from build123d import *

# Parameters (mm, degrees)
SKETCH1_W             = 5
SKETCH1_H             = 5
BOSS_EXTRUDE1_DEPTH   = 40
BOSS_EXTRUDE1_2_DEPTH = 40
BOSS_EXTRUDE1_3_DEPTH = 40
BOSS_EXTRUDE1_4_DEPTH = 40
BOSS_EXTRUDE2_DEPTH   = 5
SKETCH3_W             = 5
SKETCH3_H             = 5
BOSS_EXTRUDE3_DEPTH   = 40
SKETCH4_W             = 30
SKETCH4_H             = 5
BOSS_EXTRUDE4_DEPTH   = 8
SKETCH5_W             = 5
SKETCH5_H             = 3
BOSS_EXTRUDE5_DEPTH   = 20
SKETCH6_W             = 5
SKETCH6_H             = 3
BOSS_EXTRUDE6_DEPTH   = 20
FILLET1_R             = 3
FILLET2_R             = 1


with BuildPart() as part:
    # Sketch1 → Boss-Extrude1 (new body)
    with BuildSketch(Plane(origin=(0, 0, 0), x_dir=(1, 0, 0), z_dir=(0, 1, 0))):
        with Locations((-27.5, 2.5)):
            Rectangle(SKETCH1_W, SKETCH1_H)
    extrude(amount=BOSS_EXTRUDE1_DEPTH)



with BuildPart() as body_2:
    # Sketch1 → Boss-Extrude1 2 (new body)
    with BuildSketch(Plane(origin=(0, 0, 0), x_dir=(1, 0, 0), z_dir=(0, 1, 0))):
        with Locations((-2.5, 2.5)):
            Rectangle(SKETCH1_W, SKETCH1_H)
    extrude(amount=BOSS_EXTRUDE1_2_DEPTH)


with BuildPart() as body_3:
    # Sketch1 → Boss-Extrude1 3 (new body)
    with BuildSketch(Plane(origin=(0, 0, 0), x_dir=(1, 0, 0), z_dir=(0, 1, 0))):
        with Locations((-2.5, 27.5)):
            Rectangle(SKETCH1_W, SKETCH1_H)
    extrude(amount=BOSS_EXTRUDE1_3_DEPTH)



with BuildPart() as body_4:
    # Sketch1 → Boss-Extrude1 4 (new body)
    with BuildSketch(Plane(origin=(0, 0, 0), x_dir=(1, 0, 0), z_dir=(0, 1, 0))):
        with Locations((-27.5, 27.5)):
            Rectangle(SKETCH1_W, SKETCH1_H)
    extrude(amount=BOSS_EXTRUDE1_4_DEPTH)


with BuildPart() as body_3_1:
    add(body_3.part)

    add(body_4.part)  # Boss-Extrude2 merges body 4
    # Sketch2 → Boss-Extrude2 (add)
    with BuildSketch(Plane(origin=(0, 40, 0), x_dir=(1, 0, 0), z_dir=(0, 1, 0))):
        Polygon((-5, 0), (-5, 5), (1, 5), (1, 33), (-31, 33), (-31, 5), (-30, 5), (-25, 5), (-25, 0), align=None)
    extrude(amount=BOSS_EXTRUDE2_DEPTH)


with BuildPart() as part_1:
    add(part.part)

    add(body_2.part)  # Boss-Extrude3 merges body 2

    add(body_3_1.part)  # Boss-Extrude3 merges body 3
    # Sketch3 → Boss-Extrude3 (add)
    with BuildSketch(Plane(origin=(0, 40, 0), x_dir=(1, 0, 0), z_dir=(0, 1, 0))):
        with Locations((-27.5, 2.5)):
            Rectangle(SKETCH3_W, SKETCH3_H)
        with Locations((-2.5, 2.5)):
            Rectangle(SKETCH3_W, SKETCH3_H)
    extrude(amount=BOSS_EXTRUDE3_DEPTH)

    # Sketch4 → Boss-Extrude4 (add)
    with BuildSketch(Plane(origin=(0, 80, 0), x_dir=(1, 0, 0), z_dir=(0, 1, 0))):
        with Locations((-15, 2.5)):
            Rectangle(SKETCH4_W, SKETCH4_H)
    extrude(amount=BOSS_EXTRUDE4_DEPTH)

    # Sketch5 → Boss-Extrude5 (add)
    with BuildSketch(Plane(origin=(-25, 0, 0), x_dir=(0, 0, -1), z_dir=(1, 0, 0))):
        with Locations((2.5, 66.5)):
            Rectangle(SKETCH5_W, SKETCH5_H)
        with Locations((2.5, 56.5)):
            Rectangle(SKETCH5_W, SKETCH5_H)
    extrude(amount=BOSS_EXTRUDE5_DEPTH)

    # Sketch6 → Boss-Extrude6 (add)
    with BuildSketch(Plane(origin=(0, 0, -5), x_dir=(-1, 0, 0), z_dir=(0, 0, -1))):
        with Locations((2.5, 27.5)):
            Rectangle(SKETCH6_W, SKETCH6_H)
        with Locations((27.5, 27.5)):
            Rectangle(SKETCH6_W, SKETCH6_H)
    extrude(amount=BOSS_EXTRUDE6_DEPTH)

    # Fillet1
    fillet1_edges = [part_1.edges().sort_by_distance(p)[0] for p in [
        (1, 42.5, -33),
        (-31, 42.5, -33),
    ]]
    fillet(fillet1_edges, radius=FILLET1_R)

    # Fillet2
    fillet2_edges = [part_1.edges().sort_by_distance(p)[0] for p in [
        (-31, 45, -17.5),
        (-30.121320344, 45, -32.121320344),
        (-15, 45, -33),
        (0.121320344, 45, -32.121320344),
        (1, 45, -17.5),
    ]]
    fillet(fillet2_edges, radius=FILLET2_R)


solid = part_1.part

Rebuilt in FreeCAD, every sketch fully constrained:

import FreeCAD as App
import Part
import Sketcher
Q = App.Units.Quantity


def edges_at(feature, points):
    """Names of the edges that pass closest to the given points."""
    edges = feature.Shape.Edges
    near = lambda p: min(range(len(edges)), key=lambda i: edges[i].distToShape(Part.Vertex(*p))[0])
    return sorted({f"Edge{near(p) + 1}" for p in points})

doc = App.newDocument("Part")
params = doc.addObject("Spreadsheet::Sheet", "Params")
for row, (alias, value) in enumerate([
    ("sketch1_width", "5 mm"),
    ("pad1_length", "40 mm"),
    ("sketch2_width", "5 mm"),
    ("pad2_length", "40 mm"),
    ("sketch3_width", "5 mm"),
    ("pad3_length", "40 mm"),
    ("sketch4_width", "5 mm"),
    ("pad4_length", "40 mm"),
    ("sketch5_width", "6 mm"),
    ("sketch5_width2", "32 mm"),
    ("sketch5_height", "5 mm"),
    ("sketch5_height2", "28 mm"),
    ("pad5_length", "5 mm"),
    ("sketch6_width", "5 mm"),
    ("pad6_length", "40 mm"),
    ("sketch7_width", "30 mm"),
    ("sketch7_height", "5 mm"),
    ("pad7_length", "8 mm"),
    ("sketch8_width", "3 mm"),
    ("sketch8_height", "5 mm"),
    ("pad8_length", "20 mm"),
    ("sketch9_width", "5 mm"),
    ("sketch9_height", "3 mm"),
    ("pad9_length", "20 mm"),
    ("fillet_radius", "3 mm"),
    ("fillet2_radius", "1 mm"),
], start=1):
    params.set(f"A{row}", alias)
    params.set(f"B{row}", "=" + value)
    params.setAlias(f"B{row}", alias)

body = doc.addObject("PartDesign::Body", "Body")

# Sketch on XZ plane
sketch1 = doc.addObject("Sketcher::SketchObject", "Sketch")
body.addObject(sketch1)
sketch1.AttachmentSupport = (doc.XZ_Plane, [""])
sketch1.MapMode = "FlatFace"
sketch1.addGeometry([
    Part.LineSegment(App.Vector(-30, -5, 0), App.Vector(-30, 0, 0)),
    Part.LineSegment(App.Vector(-30, 0, 0), App.Vector(-25, 0, 0)),
    Part.LineSegment(App.Vector(-25, 0, 0), App.Vector(-25, -5, 0)),
    Part.LineSegment(App.Vector(-25, -5, 0), App.Vector(-30, -5, 0)),
], False)
sketch1.addConstraint([
    Sketcher.Constraint("Coincident", 0, 2, 1, 1),
    Sketcher.Constraint("Coincident", 1, 2, 2, 1),
    Sketcher.Constraint("Coincident", 2, 2, 3, 1),
    Sketcher.Constraint("Coincident", 3, 2, 0, 1),
    Sketcher.Constraint("Vertical", 0),
    Sketcher.Constraint("Horizontal", 1),
    Sketcher.Constraint("Vertical", 2),
    Sketcher.Constraint("Horizontal", 3),
    Sketcher.Constraint("PointOnObject", 0, 2, -1),
    Sketcher.Constraint("Equal", 3, 0),
    Sketcher.Constraint("DistanceX", 1, 1, 1, 2, Q("5 mm")),
    Sketcher.Constraint("DistanceX", 0, 2, -1, 1, Q("30 mm")),
])
sketch1.setExpression("Constraints[10]", "Params.sketch1_width")
pad1 = doc.addObject("PartDesign::Pad", "Pad")
body.addObject(pad1)
pad1.Profile = sketch1
pad1.setExpression("Length", "Params.pad1_length")
pad1.Reversed = True
body2 = doc.addObject("PartDesign::Body", "Body001")

# Sketch on XZ plane
sketch2 = doc.addObject("Sketcher::SketchObject", "Sketch001")
body2.addObject(sketch2)
sketch2.AttachmentSupport = (doc.getObject("XZ_Plane001"), [""])
sketch2.MapMode = "FlatFace"
sketch2.addGeometry([
    Part.LineSegment(App.Vector(-5, -5, 0), App.Vector(-5, 0, 0)),
    Part.LineSegment(App.Vector(-5, 0, 0), App.Vector(0, 0, 0)),
    Part.LineSegment(App.Vector(0, 0, 0), App.Vector(0, -5, 0)),
    Part.LineSegment(App.Vector(0, -5, 0), App.Vector(-5, -5, 0)),
], False)
sketch2.addConstraint([
    Sketcher.Constraint("Coincident", 0, 2, 1, 1),
    Sketcher.Constraint("Coincident", 1, 2, 2, 1),
    Sketcher.Constraint("Coincident", 2, 2, 3, 1),
    Sketcher.Constraint("Coincident", 3, 2, 0, 1),
    Sketcher.Constraint("Vertical", 0),
    Sketcher.Constraint("Horizontal", 1),
    Sketcher.Constraint("Vertical", 2),
    Sketcher.Constraint("Horizontal", 3),
    Sketcher.Constraint("Coincident", 1, 2, -1, 1),
    Sketcher.Constraint("Equal", 3, 0),
    Sketcher.Constraint("DistanceX", 1, 1, 1, 2, Q("5 mm")),
])
sketch2.setExpression("Constraints[10]", "Params.sketch2_width")
pad2 = doc.addObject("PartDesign::Pad", "Pad001")
body2.addObject(pad2)
pad2.Profile = sketch2
pad2.setExpression("Length", "Params.pad2_length")
pad2.Reversed = True
body3 = doc.addObject("PartDesign::Body", "Body002")

# Sketch on XZ plane
sketch3 = doc.addObject("Sketcher::SketchObject", "Sketch002")
body3.addObject(sketch3)
sketch3.AttachmentSupport = (doc.getObject("XZ_Plane002"), [""])
sketch3.MapMode = "FlatFace"
sketch3.addGeometry([
    Part.LineSegment(App.Vector(-5, -30, 0), App.Vector(-5, -25, 0)),
    Part.LineSegment(App.Vector(-5, -25, 0), App.Vector(0, -25, 0)),
    Part.LineSegment(App.Vector(0, -25, 0), App.Vector(0, -30, 0)),
    Part.LineSegment(App.Vector(0, -30, 0), App.Vector(-5, -30, 0)),
], False)
sketch3.addConstraint([
    Sketcher.Constraint("Coincident", 0, 2, 1, 1),
    Sketcher.Constraint("Coincident", 1, 2, 2, 1),
    Sketcher.Constraint("Coincident", 2, 2, 3, 1),
    Sketcher.Constraint("Coincident", 3, 2, 0, 1),
    Sketcher.Constraint("Vertical", 0),
    Sketcher.Constraint("Horizontal", 1),
    Sketcher.Constraint("Vertical", 2),
    Sketcher.Constraint("Horizontal", 3),
    Sketcher.Constraint("PointOnObject", 1, 2, -2),
    Sketcher.Constraint("Equal", 3, 0),
    Sketcher.Constraint("DistanceX", 1, 1, 1, 2, Q("5 mm")),
    Sketcher.Constraint("DistanceY", 0, 2, -1, 1, Q("25 mm")),
])
sketch3.setExpression("Constraints[10]", "Params.sketch3_width")
pad3 = doc.addObject("PartDesign::Pad", "Pad002")
body3.addObject(pad3)
pad3.Profile = sketch3
pad3.setExpression("Length", "Params.pad3_length")
pad3.Reversed = True
body4 = doc.addObject("PartDesign::Body", "Body003")

# Sketch on XZ plane
sketch4 = doc.addObject("Sketcher::SketchObject", "Sketch003")
body4.addObject(sketch4)
sketch4.AttachmentSupport = (doc.getObject("XZ_Plane003"), [""])
sketch4.MapMode = "FlatFace"
sketch4.addGeometry([
    Part.LineSegment(App.Vector(-30, -30, 0), App.Vector(-30, -25, 0)),
    Part.LineSegment(App.Vector(-30, -25, 0), App.Vector(-25, -25, 0)),
    Part.LineSegment(App.Vector(-25, -25, 0), App.Vector(-25, -30, 0)),
    Part.LineSegment(App.Vector(-25, -30, 0), App.Vector(-30, -30, 0)),
], False)
sketch4.addConstraint([
    Sketcher.Constraint("Coincident", 0, 2, 1, 1),
    Sketcher.Constraint("Coincident", 1, 2, 2, 1),
    Sketcher.Constraint("Coincident", 2, 2, 3, 1),
    Sketcher.Constraint("Coincident", 3, 2, 0, 1),
    Sketcher.Constraint("Vertical", 0),
    Sketcher.Constraint("Horizontal", 1),
    Sketcher.Constraint("Vertical", 2),
    Sketcher.Constraint("Horizontal", 3),
    Sketcher.Constraint("Equal", 3, 0),
    Sketcher.Constraint("DistanceX", 1, 1, 1, 2, Q("5 mm")),
    Sketcher.Constraint("DistanceX", 0, 2, -1, 1, Q("30 mm")),
    Sketcher.Constraint("DistanceY", 0, 2, -1, 1, Q("25 mm")),
])
sketch4.setExpression("Constraints[9]", "Params.sketch4_width")
pad4 = doc.addObject("PartDesign::Pad", "Pad003")
body4.addObject(pad4)
pad4.Profile = sketch4
pad4.setExpression("Length", "Params.pad4_length")
pad4.Reversed = True
body3.AllowCompound = True
doc.recompute()

boolean = doc.addObject("PartDesign::Boolean", "Boolean")
body3.addObject(boolean)
boolean.Type = "Fuse"
boolean.addObjects([body4])

# Sketch on XZ plane
sketch5 = doc.addObject("Sketcher::SketchObject", "Sketch004")
body3.addObject(sketch5)
sketch5.AttachmentSupport = (doc.getObject("XZ_Plane002"), [""])
sketch5.MapMode = "FlatFace"
sketch5.AttachmentOffset = App.Placement(App.Vector(0, 0, -40), App.Rotation())
sketch5.addGeometry([
    Part.LineSegment(App.Vector(-5, 0, 0), App.Vector(-5, -5, 0)),  # 0
    Part.LineSegment(App.Vector(-5, -5, 0), App.Vector(1, -5, 0)),  # 1
    Part.LineSegment(App.Vector(1, -5, 0), App.Vector(1, -33, 0)),  # 2
    Part.LineSegment(App.Vector(1, -33, 0), App.Vector(-31, -33, 0)),  # 3
    Part.LineSegment(App.Vector(-31, -33, 0), App.Vector(-31, -5, 0)),  # 4
    Part.LineSegment(App.Vector(-31, -5, 0), App.Vector(-25, -5, 0)),  # 5
    Part.LineSegment(App.Vector(-25, -5, 0), App.Vector(-25, 0, 0)),  # 6
    Part.LineSegment(App.Vector(-25, 0, 0), App.Vector(-5, 0, 0)),  # 7
], False)
sketch5.addConstraint([
    Sketcher.Constraint("Coincident", 0, 2, 1, 1),
    Sketcher.Constraint("Coincident", 1, 2, 2, 1),
    Sketcher.Constraint("Coincident", 2, 2, 3, 1),
    Sketcher.Constraint("Coincident", 3, 2, 4, 1),
    Sketcher.Constraint("Coincident", 4, 2, 5, 1),
    Sketcher.Constraint("Coincident", 5, 2, 6, 1),
    Sketcher.Constraint("Coincident", 6, 2, 7, 1),
    Sketcher.Constraint("Coincident", 7, 2, 0, 1),
    Sketcher.Constraint("Vertical", 0),
    Sketcher.Constraint("Horizontal", 1),
    Sketcher.Constraint("Vertical", 2),
    Sketcher.Constraint("Horizontal", 3),
    Sketcher.Constraint("Vertical", 4),
    Sketcher.Constraint("Horizontal", 5),
    Sketcher.Constraint("Vertical", 6),
    Sketcher.Constraint("Horizontal", 7),
    Sketcher.Constraint("PointOnObject", 6, 2, -1),
    Sketcher.Constraint("Horizontal", 1, 2, 4, 2),
    Sketcher.Constraint("Equal", 1, 5),
    Sketcher.Constraint("DistanceX", 1, 1, 1, 2, Q("6 mm")),
    Sketcher.Constraint("DistanceX", 3, 2, 3, 1, Q("32 mm")),
    Sketcher.Constraint("DistanceY", 0, 2, 0, 1, Q("5 mm")),
    Sketcher.Constraint("DistanceY", 2, 2, 2, 1, Q("28 mm")),
    Sketcher.Constraint("DistanceX", 0, 2, -1, 1, Q("5 mm")),
])
sketch5.setExpression("Constraints[19]", "Params.sketch5_width")
sketch5.setExpression("Constraints[20]", "Params.sketch5_width2")
sketch5.setExpression("Constraints[21]", "Params.sketch5_height")
sketch5.setExpression("Constraints[22]", "Params.sketch5_height2")
pad5 = doc.addObject("PartDesign::Pad", "Pad004")
body3.addObject(pad5)
pad5.Profile = sketch5
pad5.setExpression("Length", "Params.pad5_length")
pad5.Reversed = True
body.AllowCompound = True
doc.recompute()

boolean2 = doc.addObject("PartDesign::Boolean", "Boolean001")
body.addObject(boolean2)
boolean2.Type = "Fuse"
boolean2.addObjects([body2])
doc.recompute()

boolean3 = doc.addObject("PartDesign::Boolean", "Boolean002")
body.addObject(boolean3)
boolean3.Type = "Fuse"
boolean3.addObjects([body3])

# Sketch on XZ plane
sketch6 = doc.addObject("Sketcher::SketchObject", "Sketch005")
body.addObject(sketch6)
sketch6.AttachmentSupport = (doc.XZ_Plane, [""])
sketch6.MapMode = "FlatFace"
sketch6.AttachmentOffset = App.Placement(App.Vector(0, 0, -40), App.Rotation())
sketch6.addGeometry([
    Part.LineSegment(App.Vector(-30, -5, 0), App.Vector(-30, 0, 0)),  # 0
    Part.LineSegment(App.Vector(-30, 0, 0), App.Vector(-25, 0, 0)),  # 1
    Part.LineSegment(App.Vector(-25, 0, 0), App.Vector(-25, -5, 0)),  # 2
    Part.LineSegment(App.Vector(-25, -5, 0), App.Vector(-30, -5, 0)),  # 3
    Part.LineSegment(App.Vector(-5, -5, 0), App.Vector(-5, 0, 0)),  # 4
    Part.LineSegment(App.Vector(-5, 0, 0), App.Vector(0, 0, 0)),  # 5
    Part.LineSegment(App.Vector(0, 0, 0), App.Vector(0, -5, 0)),  # 6
    Part.LineSegment(App.Vector(0, -5, 0), App.Vector(-5, -5, 0)),  # 7
], False)
sketch6.addConstraint([
    Sketcher.Constraint("Coincident", 0, 2, 1, 1),
    Sketcher.Constraint("Coincident", 1, 2, 2, 1),
    Sketcher.Constraint("Coincident", 2, 2, 3, 1),
    Sketcher.Constraint("Coincident", 3, 2, 0, 1),
    Sketcher.Constraint("Coincident", 4, 2, 5, 1),
    Sketcher.Constraint("Coincident", 5, 2, 6, 1),
    Sketcher.Constraint("Coincident", 6, 2, 7, 1),
    Sketcher.Constraint("Coincident", 7, 2, 4, 1),
    Sketcher.Constraint("Vertical", 0),
    Sketcher.Constraint("Horizontal", 1),
    Sketcher.Constraint("Vertical", 2),
    Sketcher.Constraint("Horizontal", 3),
    Sketcher.Constraint("Vertical", 4),
    Sketcher.Constraint("Horizontal", 5),
    Sketcher.Constraint("Vertical", 6),
    Sketcher.Constraint("Horizontal", 7),
    Sketcher.Constraint("Coincident", 5, 2, -1, 1),
    Sketcher.Constraint("PointOnObject", 0, 2, -1),
    Sketcher.Constraint("Horizontal", 3, 2, 6, 2),
    Sketcher.Constraint("Equal", 3, 5),
    Sketcher.Constraint("Equal", 7, 0),
    Sketcher.Constraint("DistanceX", 1, 1, 1, 2, Q("5 mm")),
    Sketcher.Constraint("DistanceX", 0, 2, -1, 1, Q("30 mm")),
])
sketch6.setExpression("Constraints[21]", "Params.sketch6_width")
pad6 = doc.addObject("PartDesign::Pad", "Pad005")
body.addObject(pad6)
pad6.Profile = sketch6
pad6.setExpression("Length", "Params.pad6_length")
pad6.Reversed = True

# Sketch on XZ plane
sketch7 = doc.addObject("Sketcher::SketchObject", "Sketch006")
body.addObject(sketch7)
sketch7.AttachmentSupport = (doc.XZ_Plane, [""])
sketch7.MapMode = "FlatFace"
sketch7.AttachmentOffset = App.Placement(App.Vector(0, 0, -80), App.Rotation())
sketch7.addGeometry([
    Part.LineSegment(App.Vector(-30, -5, 0), App.Vector(-30, 0, 0)),
    Part.LineSegment(App.Vector(-30, 0, 0), App.Vector(0, 0, 0)),
    Part.LineSegment(App.Vector(0, 0, 0), App.Vector(0, -5, 0)),
    Part.LineSegment(App.Vector(0, -5, 0), App.Vector(-30, -5, 0)),
], False)
sketch7.addConstraint([
    Sketcher.Constraint("Coincident", 0, 2, 1, 1),
    Sketcher.Constraint("Coincident", 1, 2, 2, 1),
    Sketcher.Constraint("Coincident", 2, 2, 3, 1),
    Sketcher.Constraint("Coincident", 3, 2, 0, 1),
    Sketcher.Constraint("Vertical", 0),
    Sketcher.Constraint("Horizontal", 1),
    Sketcher.Constraint("Vertical", 2),
    Sketcher.Constraint("Horizontal", 3),
    Sketcher.Constraint("Coincident", 1, 2, -1, 1),
    Sketcher.Constraint("DistanceX", 1, 1, 1, 2, Q("30 mm")),
    Sketcher.Constraint("DistanceY", 0, 1, 0, 2, Q("5 mm")),
])
sketch7.setExpression("Constraints[9]", "Params.sketch7_width")
sketch7.setExpression("Constraints[10]", "Params.sketch7_height")
pad7 = doc.addObject("PartDesign::Pad", "Pad006")
body.addObject(pad7)
pad7.Profile = sketch7
pad7.setExpression("Length", "Params.pad7_length")
pad7.Reversed = True

# Sketch on YZ plane
sketch8 = doc.addObject("Sketcher::SketchObject", "Sketch007")
body.addObject(sketch8)
sketch8.AttachmentSupport = (doc.YZ_Plane, [""])
sketch8.MapMode = "FlatFace"
sketch8.AttachmentOffset = App.Placement(App.Vector(0, 0, -25), App.Rotation())
sketch8.addGeometry([
    Part.LineSegment(App.Vector(68, 0, 0), App.Vector(65, 0, 0)),  # 0
    Part.LineSegment(App.Vector(65, 0, 0), App.Vector(65, -5, 0)),  # 1
    Part.LineSegment(App.Vector(65, -5, 0), App.Vector(68, -5, 0)),  # 2
    Part.LineSegment(App.Vector(68, -5, 0), App.Vector(68, 0, 0)),  # 3
    Part.LineSegment(App.Vector(58, 0, 0), App.Vector(55, 0, 0)),  # 4
    Part.LineSegment(App.Vector(55, 0, 0), App.Vector(55, -5, 0)),  # 5
    Part.LineSegment(App.Vector(55, -5, 0), App.Vector(58, -5, 0)),  # 6
    Part.LineSegment(App.Vector(58, -5, 0), App.Vector(58, 0, 0)),  # 7
], False)
sketch8.addConstraint([
    Sketcher.Constraint("Coincident", 0, 2, 1, 1),
    Sketcher.Constraint("Coincident", 1, 2, 2, 1),
    Sketcher.Constraint("Coincident", 2, 2, 3, 1),
    Sketcher.Constraint("Coincident", 3, 2, 0, 1),
    Sketcher.Constraint("Coincident", 4, 2, 5, 1),
    Sketcher.Constraint("Coincident", 5, 2, 6, 1),
    Sketcher.Constraint("Coincident", 6, 2, 7, 1),
    Sketcher.Constraint("Coincident", 7, 2, 4, 1),
    Sketcher.Constraint("Horizontal", 0),
    Sketcher.Constraint("Vertical", 1),
    Sketcher.Constraint("Horizontal", 2),
    Sketcher.Constraint("Vertical", 3),
    Sketcher.Constraint("Horizontal", 4),
    Sketcher.Constraint("Vertical", 5),
    Sketcher.Constraint("Horizontal", 6),
    Sketcher.Constraint("Vertical", 7),
    Sketcher.Constraint("PointOnObject", 0, 2, -1),
    Sketcher.Constraint("PointOnObject", 4, 2, -1),
    Sketcher.Constraint("Horizontal", 2, 2, 5, 2),
    Sketcher.Constraint("Equal", 2, 4),
    Sketcher.Constraint("DistanceX", 0, 2, 0, 1, Q("3 mm")),
    Sketcher.Constraint("DistanceY", 1, 2, 1, 1, Q("5 mm")),
    Sketcher.Constraint("DistanceX", -1, 1, 0, 2, Q("65 mm")),
    Sketcher.Constraint("DistanceX", -1, 1, 4, 2, Q("55 mm")),
])
sketch8.setExpression("Constraints[20]", "Params.sketch8_width")
sketch8.setExpression("Constraints[21]", "Params.sketch8_height")
pad8 = doc.addObject("PartDesign::Pad", "Pad007")
body.addObject(pad8)
pad8.Profile = sketch8
pad8.setExpression("Length", "Params.pad8_length")

# Sketch on XY plane
sketch9 = doc.addObject("Sketcher::SketchObject", "Sketch008")
body.addObject(sketch9)
sketch9.AttachmentSupport = (doc.XY_Plane, [""])
sketch9.MapMode = "FlatFace"
sketch9.AttachmentOffset = App.Placement(App.Vector(0, 0, -5), App.Rotation())
sketch9.addGeometry([
    Part.LineSegment(App.Vector(0, 29, 0), App.Vector(0, 26, 0)),  # 0
    Part.LineSegment(App.Vector(0, 26, 0), App.Vector(-5, 26, 0)),  # 1
    Part.LineSegment(App.Vector(-5, 26, 0), App.Vector(-5, 29, 0)),  # 2
    Part.LineSegment(App.Vector(-5, 29, 0), App.Vector(0, 29, 0)),  # 3
    Part.LineSegment(App.Vector(-25, 29, 0), App.Vector(-25, 26, 0)),  # 4
    Part.LineSegment(App.Vector(-25, 26, 0), App.Vector(-30, 26, 0)),  # 5
    Part.LineSegment(App.Vector(-30, 26, 0), App.Vector(-30, 29, 0)),  # 6
    Part.LineSegment(App.Vector(-30, 29, 0), App.Vector(-25, 29, 0)),  # 7
], False)
sketch9.addConstraint([
    Sketcher.Constraint("Coincident", 0, 2, 1, 1),
    Sketcher.Constraint("Coincident", 1, 2, 2, 1),
    Sketcher.Constraint("Coincident", 2, 2, 3, 1),
    Sketcher.Constraint("Coincident", 3, 2, 0, 1),
    Sketcher.Constraint("Coincident", 4, 2, 5, 1),
    Sketcher.Constraint("Coincident", 5, 2, 6, 1),
    Sketcher.Constraint("Coincident", 6, 2, 7, 1),
    Sketcher.Constraint("Coincident", 7, 2, 4, 1),
    Sketcher.Constraint("Vertical", 0),
    Sketcher.Constraint("Horizontal", 1),
    Sketcher.Constraint("Vertical", 2),
    Sketcher.Constraint("Horizontal", 3),
    Sketcher.Constraint("Vertical", 4),
    Sketcher.Constraint("Horizontal", 5),
    Sketcher.Constraint("Vertical", 6),
    Sketcher.Constraint("Horizontal", 7),
    Sketcher.Constraint("PointOnObject", 0, 2, -2),
    Sketcher.Constraint("Horizontal", 1, 2, 4, 2),
    Sketcher.Constraint("Horizontal", 3, 2, 6, 2),
    Sketcher.Constraint("Equal", 3, 5),
    Sketcher.Constraint("DistanceX", 1, 2, 1, 1, Q("5 mm")),
    Sketcher.Constraint("DistanceY", 0, 2, 0, 1, Q("3 mm")),
    Sketcher.Constraint("DistanceY", -1, 1, 0, 2, Q("26 mm")),
    Sketcher.Constraint("DistanceX", 4, 2, -1, 1, Q("25 mm")),
])
sketch9.setExpression("Constraints[20]", "Params.sketch9_width")
sketch9.setExpression("Constraints[21]", "Params.sketch9_height")
pad9 = doc.addObject("PartDesign::Pad", "Pad008")
body.addObject(pad9)
pad9.Profile = sketch9
pad9.setExpression("Length", "Params.pad9_length")
pad9.Reversed = True
doc.recompute()

fillet = doc.addObject("PartDesign::Fillet", "Fillet")
body.addObject(fillet)
fillet.Base = (pad9, edges_at(pad9, [(1, 42.5, -33), (-31, 42.5, -33)]))
fillet.setExpression("Radius", "Params.fillet_radius")
doc.recompute()

fillet2 = doc.addObject("PartDesign::Fillet", "Fillet001")
body.addObject(fillet2)
fillet2.Base = (fillet, edges_at(fillet, [
    (-31, 45, -17.5),
    (-30.121, 45, -32.121),
    (-15, 45, -33),
    (0.121, 45, -32.121),
    (1, 45, -17.5),
]))
fillet2.setExpression("Radius", "Params.fillet2_radius")

doc.recompute()
